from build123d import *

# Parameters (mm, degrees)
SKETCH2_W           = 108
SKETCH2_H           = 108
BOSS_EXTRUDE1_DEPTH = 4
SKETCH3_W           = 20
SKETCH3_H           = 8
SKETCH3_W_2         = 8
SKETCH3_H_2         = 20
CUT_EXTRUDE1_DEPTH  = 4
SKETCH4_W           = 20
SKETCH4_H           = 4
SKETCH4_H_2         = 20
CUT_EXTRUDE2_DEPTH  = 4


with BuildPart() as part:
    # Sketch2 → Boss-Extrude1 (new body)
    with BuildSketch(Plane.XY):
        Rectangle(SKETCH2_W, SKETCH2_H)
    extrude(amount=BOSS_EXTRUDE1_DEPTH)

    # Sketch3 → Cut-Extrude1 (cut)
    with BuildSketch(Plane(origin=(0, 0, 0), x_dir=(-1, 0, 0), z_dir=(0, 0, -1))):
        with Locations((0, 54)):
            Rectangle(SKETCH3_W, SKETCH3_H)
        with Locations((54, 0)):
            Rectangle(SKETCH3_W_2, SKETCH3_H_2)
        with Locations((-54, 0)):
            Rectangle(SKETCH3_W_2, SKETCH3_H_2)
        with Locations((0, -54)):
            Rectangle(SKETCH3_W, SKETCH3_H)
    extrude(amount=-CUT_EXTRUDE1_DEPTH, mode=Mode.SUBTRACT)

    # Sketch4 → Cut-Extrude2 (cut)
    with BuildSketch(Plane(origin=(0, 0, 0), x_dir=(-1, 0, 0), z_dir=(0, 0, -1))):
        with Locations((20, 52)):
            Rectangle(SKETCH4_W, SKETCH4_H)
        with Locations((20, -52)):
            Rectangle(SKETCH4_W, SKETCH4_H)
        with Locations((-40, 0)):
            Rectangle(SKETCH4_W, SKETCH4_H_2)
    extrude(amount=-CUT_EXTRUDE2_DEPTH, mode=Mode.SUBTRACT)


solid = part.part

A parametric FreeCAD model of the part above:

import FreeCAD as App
import Part
import Sketcher


def add_polygon(sketch, points):
    """Adds a closed chain of lines whose ends are joined by coincident constraints."""
    first, n = sketch.GeometryCount, len(points)
    for a, b in zip(points, points[1:] + points[:1]):
        sketch.addGeometry(Part.LineSegment(App.Vector(*a, 0), App.Vector(*b, 0)), False)
    for i in range(n):
        sketch.addConstraint(Sketcher.Constraint("Coincident", first + i, 2, first + (i + 1) % n, 1))

doc = App.newDocument("Part")
body = doc.addObject("PartDesign::Body", "Body")

sketch1 = doc.addObject("Sketcher::SketchObject", "Sketch")
body.addObject(sketch1)
sketch1.AttachmentSupport = (doc.XY_Plane, [""])
sketch1.MapMode = "FlatFace"
add_polygon(sketch1, [(-54, 54), (-54, -54), (54, -54), (54, 54)])
sketch1.addConstraint([
    Sketcher.Constraint("Vertical", 0),
    Sketcher.Constraint("Horizontal", 1),
    Sketcher.Constraint("Vertical", 2),
    Sketcher.Constraint("Horizontal", 3),
    Sketcher.Constraint("Symmetric", 0, 2, 2, 2, -1, 1),
    Sketcher.Constraint("Equal", 3, 0),
    Sketcher.Constraint("DistanceX", 1, 1, 1, 2, 108.0),
])
pad1 = doc.addObject("PartDesign::Pad", "Pad")
body.addObject(pad1)
pad1.Profile = sketch1
pad1.Length = 4

sketch2 = doc.addObject("Sketcher::SketchObject", "Sketch001")
body.addObject(sketch2)
sketch2.AttachmentSupport = (doc.XY_Plane, [""])
sketch2.MapMode = "FlatFace"
add_polygon(sketch2, [(10, 58), (10, 50), (-10, 50), (-10, 58)])
add_polygon(sketch2, [(-50, 10), (-50, -10), (-58, -10), (-58, 10)])
add_polygon(sketch2, [(58, 10), (58, -10), (50, -10), (50, 10)])
add_polygon(sketch2, [(10, -50), (10, -58), (-10, -58), (-10, -50)])
sketch2.addConstraint([
    Sketcher.Constraint("Vertical", 0),
    Sketcher.Constraint("Horizontal", 1),
    Sketcher.Constraint("Vertical", 2),
    Sketcher.Constraint("Horizontal", 3),
    Sketcher.Constraint("Vertical", 4),
    Sketcher.Constraint("Horizontal", 5),
    Sketcher.Constraint("Vertical", 6),
    Sketcher.Constraint("Horizontal", 7),
    Sketcher.Constraint("Vertical", 8),
    Sketcher.Constraint("Horizontal", 9),
    Sketcher.Constraint("Vertical", 10),
    Sketcher.Constraint("Horizontal", 11),
    Sketcher.Constraint("Vertical", 12),
    Sketcher.Constraint("Horizontal", 13),
    Sketcher.Constraint("Vertical", 14),
    Sketcher.Constraint("Horizontal", 15),
    Sketcher.Constraint("Symmetric", 6, 2, 8, 2, -1, 1),
    Sketcher.Constraint("Symmetric", 4, 2, 10, 2, -1, 1),
    Sketcher.Constraint("Symmetric", 2, 2, 12, 2, -1, 1),
    Sketcher.Constraint("Symmetric", 0, 2, 14, 2, -1, 1),
    Sketcher.Constraint("Horizontal", 5, 2, 8, 2),
    Sketcher.Constraint("Vertical", 3, 2, 12, 2),
    Sketcher.Constraint("Equal", 11, 0),
    Sketcher.Constraint("Equal", 15, 4),
    Sketcher.Constraint("DistanceX", 1, 2, 1, 1, 20.0),
    Sketcher.Constraint("DistanceX", 5, 2, 5, 1, 8.0),
    Sketcher.Constraint("DistanceY", -1, 1, 0, 2, 50.0),
    Sketcher.Constraint("DistanceX", 4, 2, -1, 1, 50.0),
])
pocket1 = doc.addObject("PartDesign::Pocket", "Pocket")
body.addObject(pocket1)
pocket1.Profile = sketch2
pocket1.Length = 4
pocket1.Reversed = True

sketch3 = doc.addObject("Sketcher::SketchObject", "Sketch002")
body.addObject(sketch3)
sketch3.AttachmentSupport = (doc.XY_Plane, [""])
sketch3.MapMode = "FlatFace"
add_polygon(sketch3, [(-10, 54), (-10, 50), (-30, 50), (-30, 54)])
add_polygon(sketch3, [(-10, -50), (-10, -54), (-30, -54), (-30, -50)])
add_polygon(sketch3, [(50, 10), (50, -10), (30, -10), (30, 10)])
sketch3.addConstraint([
    Sketcher.Constraint("Vertical", 0),
    Sketcher.Constraint("Horizontal", 1),
    Sketcher.Constraint("Vertical", 2),
    Sketcher.Constraint("Horizontal", 3),
    Sketcher.Constraint("Vertical", 4),
    Sketcher.Constraint("Horizontal", 5),
    Sketcher.Constraint("Vertical", 6),
    Sketcher.Constraint("Horizontal", 7),
    Sketcher.Constraint("Vertical", 8),
    Sketcher.Constraint("Horizontal", 9),
    Sketcher.Constraint("Vertical", 10),
    Sketcher.Constraint("Horizontal", 11),
    Sketcher.Constraint("Symmetric", 3, 2, 4, 2, -1),
    Sketcher.Constraint("Symmetric", 1, 2, 6, 2, -1),
    Sketcher.Constraint("Equal", 7, 9),
    Sketcher.Constraint("Equal", 11, 8),
    Sketcher.Constraint("DistanceX", 1, 2, 1, 1, 20.0),
    Sketcher.Constraint("DistanceY", 0, 2, 0, 1, 4.0),
    Sketcher.Constraint("DistanceX", 0, 2, -1, 1, 10.0),
    Sketcher.Constraint("DistanceY", -1, 1, 0, 2, 50.0),
    Sketcher.Constraint("DistanceX", -1, 1, 8, 2, 50.0),
    Sketcher.Constraint("DistanceY", 8, 2, -1, 1, 10.0),
])
pocket2 = doc.addObject("PartDesign::Pocket", "Pocket001")
body.addObject(pocket2)
pocket2.Profile = sketch3
pocket2.Length = 4
pocket2.Reversed = True

doc.recompute()
